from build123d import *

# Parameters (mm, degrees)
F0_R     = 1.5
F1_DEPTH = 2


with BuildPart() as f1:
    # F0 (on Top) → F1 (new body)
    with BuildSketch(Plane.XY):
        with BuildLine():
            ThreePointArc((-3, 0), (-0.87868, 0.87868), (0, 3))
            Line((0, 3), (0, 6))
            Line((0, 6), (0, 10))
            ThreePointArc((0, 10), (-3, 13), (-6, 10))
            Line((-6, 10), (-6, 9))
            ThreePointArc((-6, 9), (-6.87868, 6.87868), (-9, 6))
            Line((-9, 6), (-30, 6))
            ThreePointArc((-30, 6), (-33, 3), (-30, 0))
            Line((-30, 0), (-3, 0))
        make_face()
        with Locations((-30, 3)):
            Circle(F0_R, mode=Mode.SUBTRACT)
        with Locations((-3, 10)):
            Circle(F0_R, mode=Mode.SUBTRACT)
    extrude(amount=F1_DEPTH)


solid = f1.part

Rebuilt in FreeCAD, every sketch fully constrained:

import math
import FreeCAD as App
import Part
import Sketcher

doc = App.newDocument("Part")
params = doc.addObject("Spreadsheet::Sheet", "Params")
for row, (alias, value) in enumerate([
    ("sketch1_diameter", "3 mm"),
    ("sketch1_radius", "3.000001 mm"),
    ("sketch1_width", "21 mm"),
    ("sketch1_height", "7 mm"),
    ("pad1_length", "2 mm"),
], start=1):
    params.set(f"A{row}", alias)
    params.set(f"B{row}", "=" + value)
    params.setAlias(f"B{row}", alias)

body = doc.addObject("PartDesign::Body", "Body")

sketch1 = doc.addObject("Sketcher::SketchObject", "Sketch")
body.addObject(sketch1)
sketch1.AttachmentSupport = (doc.XY_Plane, [""])
sketch1.MapMode = "FlatFace"
sketch1.addGeometry(Part.ArcOfCircle(Part.Circle(App.Vector(-3, 3, 0), App.Vector(0, 0, 1), 3), math.radians(-90), math.radians(0)), False)
sketch1.addGeometry(Part.LineSegment(App.Vector(0, 3, 0), App.Vector(0, 10, 0)), False)
sketch1.addGeometry(Part.ArcOfCircle(Part.Circle(App.Vector(-3, 10, 0), App.Vector(0, 0, 1), 3), math.radians(0), math.radians(180)), False)
sketch1.addGeometry(Part.LineSegment(App.Vector(-6, 10, 0), App.Vector(-6, 9, 0)), False)
sketch1.addGeometry(Part.ArcOfCircle(Part.Circle(App.Vector(-9, 9, 0), App.Vector(0, 0, 1), 3), math.radians(-90), math.radians(0)), False)
sketch1.addGeometry(Part.LineSegment(App.Vector(-9, 6, 0), App.Vector(-30, 6, 0)), False)
sketch1.addGeometry(Part.ArcOfCircle(Part.Circle(App.Vector(-30, 3, 0), App.Vector(0, 0, 1), 3), math.radians(90), math.radians(270)), False)
sketch1.addGeometry(Part.LineSegment(App.Vector(-30, 0, 0), App.Vector(-3, 0, 0)), False)
sketch1.addGeometry(Part.Circle(App.Vector(-30, 3, 0), App.Vector(0, 0, 1), 1.5), False)
sketch1.addGeometry(Part.Circle(App.Vector(-3, 10, 0), App.Vector(0, 0, 1), 1.5), False)
sketch1.addConstraint(Sketcher.Constraint("Tangent", 0, 2, 1, 1))
sketch1.addConstraint(Sketcher.Constraint("Tangent", 1, 2, 2, 1))
sketch1.addConstraint(Sketcher.Constraint("Tangent", 2, 2, 3, 1))
sketch1.addConstraint(Sketcher.Constraint("Tangent", 3, 2, 4, 2))
sketch1.addConstraint(Sketcher.Constraint("Tangent", 4, 1, 5, 1))
sketch1.addConstraint(Sketcher.Constraint("Tangent", 5, 2, 6, 1))
sketch1.addConstraint(Sketcher.Constraint("Tangent", 6, 2, 7, 1))
sketch1.addConstraint(Sketcher.Constraint("Tangent", 7, 2, 0, 1))
sketch1.addConstraint(Sketcher.Constraint("Vertical", 1))
sketch1.addConstraint(Sketcher.Constraint("Vertical", 3))
sketch1.addConstraint(Sketcher.Constraint("Horizontal", 5))
sketch1.addConstraint(Sketcher.Constraint("Horizontal", 7))
sketch1.addConstraint(Sketcher.Constraint("Coincident", 8, 3, 6, 3))
sketch1.addConstraint(Sketcher.Constraint("Coincident", 9, 3, 2, 3))
sketch1.addConstraint(Sketcher.Constraint("Equal", 0, 2))
sketch1.addConstraint(Sketcher.Constraint("Equal", 2, 4))
sketch1.addConstraint(Sketcher.Constraint("Equal", 4, 6))
sketch1.addConstraint(Sketcher.Constraint("Equal", 8, 9))
sketch1.addConstraint(Sketcher.Constraint("PointOnObject", 0, 2, -2))
sketch1.addConstraint(Sketcher.Constraint("PointOnObject", 6, 2, -1))
sketch1.addConstraint(Sketcher.Constraint("Diameter", 8, 3.0))
sketch1.addConstraint(Sketcher.Constraint("Radius", 0, 3.000001))
sketch1.addConstraint(Sketcher.Constraint("DistanceX", 5, 2, 5, 1, 21.0))
sketch1.addConstraint(Sketcher.Constraint("DistanceY", 1, 1, 1, 2, 7.0))
sketch1.setExpression("Constraints[20]", "Params.sketch1_diameter")
sketch1.setExpression("Constraints[21]", "Params.sketch1_radius")
sketch1.setExpression("Constraints[22]", "Params.sketch1_width")
sketch1.setExpression("Constraints[23]", "Params.sketch1_height")
pad1 = doc.addObject("PartDesign::Pad", "Pad")
body.addObject(pad1)
pad1.Profile = sketch1
pad1.setExpression("Length", "Params.pad1_length")

doc.recompute()
